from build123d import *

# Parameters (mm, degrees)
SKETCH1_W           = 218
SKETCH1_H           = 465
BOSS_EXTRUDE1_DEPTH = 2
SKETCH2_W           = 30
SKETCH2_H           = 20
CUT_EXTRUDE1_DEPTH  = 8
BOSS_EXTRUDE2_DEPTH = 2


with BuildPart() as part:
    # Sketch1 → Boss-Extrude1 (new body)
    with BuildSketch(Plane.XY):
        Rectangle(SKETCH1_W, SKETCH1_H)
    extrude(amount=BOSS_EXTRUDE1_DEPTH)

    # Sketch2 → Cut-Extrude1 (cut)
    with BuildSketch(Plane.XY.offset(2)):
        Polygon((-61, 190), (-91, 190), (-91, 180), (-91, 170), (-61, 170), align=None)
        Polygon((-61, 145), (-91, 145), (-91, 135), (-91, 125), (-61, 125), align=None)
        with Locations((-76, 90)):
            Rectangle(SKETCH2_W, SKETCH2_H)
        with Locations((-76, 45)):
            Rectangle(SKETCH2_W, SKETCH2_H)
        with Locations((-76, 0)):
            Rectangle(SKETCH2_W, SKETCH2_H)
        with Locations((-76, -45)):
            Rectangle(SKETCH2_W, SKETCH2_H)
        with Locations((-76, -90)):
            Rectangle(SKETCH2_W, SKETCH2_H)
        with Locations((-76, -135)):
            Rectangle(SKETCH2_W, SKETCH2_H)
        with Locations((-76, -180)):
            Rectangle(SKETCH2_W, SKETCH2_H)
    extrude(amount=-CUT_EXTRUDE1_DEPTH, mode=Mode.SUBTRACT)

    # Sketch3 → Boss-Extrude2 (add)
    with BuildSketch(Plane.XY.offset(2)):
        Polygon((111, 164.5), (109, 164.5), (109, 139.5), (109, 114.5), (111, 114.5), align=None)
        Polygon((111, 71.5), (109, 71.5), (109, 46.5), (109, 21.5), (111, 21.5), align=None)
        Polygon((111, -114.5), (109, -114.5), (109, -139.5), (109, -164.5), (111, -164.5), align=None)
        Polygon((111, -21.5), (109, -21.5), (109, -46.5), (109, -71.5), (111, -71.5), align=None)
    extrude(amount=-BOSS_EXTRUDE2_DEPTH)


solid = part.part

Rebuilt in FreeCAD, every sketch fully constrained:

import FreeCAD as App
import Part
import Sketcher

V = App.Vector

doc = App.newDocument("Part")
params = doc.addObject("Spreadsheet::Sheet", "Params")
for row, (alias, value) in enumerate([
    ("sketch1_width", "218 mm"),
    ("sketch1_height", "465 mm"),
    ("pad1_length", "2 mm"),
    ("sketch2_width", "30 mm"),
    ("sketch2_height", "20 mm"),
    ("pocket1_length", "8 mm"),
    ("sketch3_width", "2 mm"),
    ("sketch3_height", "50 mm"),
    ("pad2_length", "2 mm"),
], start=1):
    params.set(f"A{row}", alias)
    params.set(f"B{row}", "=" + value)
    params.setAlias(f"B{row}", alias)

body = doc.addObject("PartDesign::Body", "Body")

# Sketch on XY plane
sketch1 = body.newObject("Sketcher::SketchObject", "Sketch")
sketch1.AttachmentSupport = (doc.getObject("XY_Plane"), [""])
sketch1.MapMode = "FlatFace"
sketch1.addGeometry([
    Part.LineSegment(V(-109, 232, 0), V(-109, -232, 0)),
    Part.LineSegment(V(-109, -232, 0), V(109, -232, 0)),
    Part.LineSegment(V(109, -232, 0), V(109, 232, 0)),
    Part.LineSegment(V(109, 232, 0), V(-109, 232, 0)),
], False)
sketch1.addConstraint([
    Sketcher.Constraint("Coincident", 0, 2, 1, 1),
    Sketcher.Constraint("Coincident", 1, 2, 2, 1),
    Sketcher.Constraint("Coincident", 2, 2, 3, 1),
    Sketcher.Constraint("Coincident", 3, 2, 0, 1),
    Sketcher.Constraint("Vertical", 0),
    Sketcher.Constraint("Horizontal", 1),
    Sketcher.Constraint("Vertical", 2),
    Sketcher.Constraint("Horizontal", 3),
    Sketcher.Constraint("Symmetric", 0, 2, 2, 2, -1, 1),
    Sketcher.Constraint("DistanceX", 1, 1, 1, 2, 218.0),
    Sketcher.Constraint("DistanceY", 0, 2, 0, 1, 465.0),
])
sketch1.setExpression("Constraints[9]", "Params.sketch1_width")
sketch1.setExpression("Constraints[10]", "Params.sketch1_height")
pad1 = body.newObject("PartDesign::Pad", "Pad")
pad1.Profile = sketch1
pad1.setExpression("Length", "Params.pad1_length")

# Sketch on XY plane
sketch2 = body.newObject("Sketcher::SketchObject", "Sketch001")
sketch2.AttachmentSupport = (doc.getObject("XY_Plane"), [""])
sketch2.MapMode = "FlatFace"
sketch2.AttachmentOffset = App.Placement(V(0, 0, 2), App.Rotation())
sketch2.addGeometry([
    Part.LineSegment(V(-61, 190, 0), V(-91, 190, 0)),  # 0
    Part.LineSegment(V(-91, 190, 0), V(-91, 170, 0)),  # 1
    Part.LineSegment(V(-91, 170, 0), V(-61, 170, 0)),  # 2
    Part.LineSegment(V(-61, 170, 0), V(-61, 190, 0)),  # 3
    Part.LineSegment(V(-61, 145, 0), V(-91, 145, 0)),  # 4
    Part.LineSegment(V(-91, 145, 0), V(-91, 125, 0)),  # 5
    Part.LineSegment(V(-91, 125, 0), V(-61, 125, 0)),  # 6
    Part.LineSegment(V(-61, 125, 0), V(-61, 145, 0)),  # 7
    Part.LineSegment(V(-91, 100, 0), V(-91, 80, 0)),  # 8
    Part.LineSegment(V(-91, 80, 0), V(-61, 80, 0)),  # 9
    Part.LineSegment(V(-61, 80, 0), V(-61, 100, 0)),  # 10
    Part.LineSegment(V(-61, 100, 0), V(-91, 100, 0)),  # 11
    Part.LineSegment(V(-91, 55, 0), V(-91, 35, 0)),  # 12
    Part.LineSegment(V(-91, 35, 0), V(-61, 35, 0)),  # 13
    Part.LineSegment(V(-61, 35, 0), V(-61, 55, 0)),  # 14
    Part.LineSegment(V(-61, 55, 0), V(-91, 55, 0)),  # 15
    Part.LineSegment(V(-91, 10, 0), V(-91, -10, 0)),  # 16
    Part.LineSegment(V(-91, -10, 0), V(-61, -10, 0)),  # 17
    Part.LineSegment(V(-61, -10, 0), V(-61, 10, 0)),  # 18
    Part.LineSegment(V(-61, 10, 0), V(-91, 10, 0)),  # 19
    Part.LineSegment(V(-91, -35, 0), V(-91, -55, 0)),  # 20
    Part.LineSegment(V(-91, -55, 0), V(-61, -55, 0)),  # 21
    Part.LineSegment(V(-61, -55, 0), V(-61, -35, 0)),  # 22
    Part.LineSegment(V(-61, -35, 0), V(-91, -35, 0)),  # 23
    Part.LineSegment(V(-91, -80, 0), V(-91, -100, 0)),  # 24
    Part.LineSegment(V(-91, -100, 0), V(-61, -100, 0)),  # 25
    Part.LineSegment(V(-61, -100, 0), V(-61, -80, 0)),  # 26
    Part.LineSegment(V(-61, -80, 0), V(-91, -80, 0)),  # 27
    Part.LineSegment(V(-91, -125, 0), V(-91, -145, 0)),  # 28
    Part.LineSegment(V(-91, -145, 0), V(-61, -145, 0)),  # 29
    Part.LineSegment(V(-61, -145, 0), V(-61, -125, 0)),  # 30
    Part.LineSegment(V(-61, -125, 0), V(-91, -125, 0)),  # 31
    Part.LineSegment(V(-91, -170, 0), V(-91, -190, 0)),  # 32
    Part.LineSegment(V(-91, -190, 0), V(-61, -190, 0)),  # 33
    Part.LineSegment(V(-61, -190, 0), V(-61, -170, 0)),  # 34
    Part.LineSegment(V(-61, -170, 0), V(-91, -170, 0)),  # 35
], False)
sketch2.addConstraint([
    Sketcher.Constraint("Coincident", 0, 2, 1, 1),
    Sketcher.Constraint("Coincident", 1, 2, 2, 1),
    Sketcher.Constraint("Coincident", 2, 2, 3, 1),
    Sketcher.Constraint("Coincident", 3, 2, 0, 1),
    Sketcher.Constraint("Coincident", 4, 2, 5, 1),
    Sketcher.Constraint("Coincident", 5, 2, 6, 1),
    Sketcher.Constraint("Coincident", 6, 2, 7, 1),
    Sketcher.Constraint("Coincident", 7, 2, 4, 1),
    Sketcher.Constraint("Coincident", 8, 2, 9, 1),
    Sketcher.Constraint("Coincident", 9, 2, 10, 1),
    Sketcher.Constraint("Coincident", 10, 2, 11, 1),
    Sketcher.Constraint("Coincident", 11, 2, 8, 1),
    Sketcher.Constraint("Coincident", 12, 2, 13, 1),
    Sketcher.Constraint("Coincident", 13, 2, 14, 1),
    Sketcher.Constraint("Coincident", 14, 2, 15, 1),
    Sketcher.Constraint("Coincident", 15, 2, 12, 1),
    Sketcher.Constraint("Coincident", 16, 2, 17, 1),
    Sketcher.Constraint("Coincident", 17, 2, 18, 1),
    Sketcher.Constraint("Coincident", 18, 2, 19, 1),
    Sketcher.Constraint("Coincident", 19, 2, 16, 1),
    Sketcher.Constraint("Coincident", 20, 2, 21, 1),
    Sketcher.Constraint("Coincident", 21, 2, 22, 1),
    Sketcher.Constraint("Coincident", 22, 2, 23, 1),
    Sketcher.Constraint("Coincident", 23, 2, 20, 1),
    Sketcher.Constraint("Coincident", 24, 2, 25, 1),
    Sketcher.Constraint("Coincident", 25, 2, 26, 1),
    Sketcher.Constraint("Coincident", 26, 2, 27, 1),
    Sketcher.Constraint("Coincident", 27, 2, 24, 1),
    Sketcher.Constraint("Coincident", 28, 2, 29, 1),
    Sketcher.Constraint("Coincident", 29, 2, 30, 1),
    Sketcher.Constraint("Coincident", 30, 2, 31, 1),
    Sketcher.Constraint("Coincident", 31, 2, 28, 1),
    Sketcher.Constraint("Coincident", 32, 2, 33, 1),
    Sketcher.Constraint("Coincident", 33, 2, 34, 1),
    Sketcher.Constraint("Coincident", 34, 2, 35, 1),
    Sketcher.Constraint("Coincident", 35, 2, 32, 1),
    Sketcher.Constraint("Horizontal", 0),
    Sketcher.Constraint("Vertical", 1),
    Sketcher.Constraint("Horizontal", 2),
    Sketcher.Constraint("Vertical", 3),
    Sketcher.Constraint("Horizontal", 4),
    Sketcher.Constraint("Vertical", 5),
    Sketcher.Constraint("Horizontal", 6),
    Sketcher.Constraint("Vertical", 7),
    Sketcher.Constraint("Vertical", 8),
    Sketcher.Constraint("Horizontal", 9),
    Sketcher.Constraint("Vertical", 10),
    Sketcher.Constraint("Horizontal", 11),
    Sketcher.Constraint("Vertical", 12),
    Sketcher.Constraint("Horizontal", 13),
    Sketcher.Constraint("Vertical", 14),
    Sketcher.Constraint("Horizontal", 15),
    Sketcher.Constraint("Vertical", 16),
    Sketcher.Constraint("Horizontal", 17),
    Sketcher.Constraint("Vertical", 18),
    Sketcher.Constraint("Horizontal", 19),
    Sketcher.Constraint("Vertical", 20),
    Sketcher.Constraint("Horizontal", 21),
    Sketcher.Constraint("Vertical", 22),
    Sketcher.Constraint("Horizontal", 23),
    Sketcher.Constraint("Vertical", 24),
    Sketcher.Constraint("Horizontal", 25),
    Sketcher.Constraint("Vertical", 26),
    Sketcher.Constraint("Horizontal", 27),
    Sketcher.Constraint("Vertical", 28),
    Sketcher.Constraint("Horizontal", 29),
    Sketcher.Constraint("Vertical", 30),
    Sketcher.Constraint("Horizontal", 31),
    Sketcher.Constraint("Vertical", 32),
    Sketcher.Constraint("Horizontal", 33),
    Sketcher.Constraint("Vertical", 34),
    Sketcher.Constraint("Horizontal", 35),
    Sketcher.Constraint("Symmetric", 15, 2, 20, 2, -1),
    Sketcher.Constraint("Symmetric", 13, 2, 22, 2, -1),
    Sketcher.Constraint("Symmetric", 11, 2, 24, 2, -1),
    Sketcher.Constraint("Symmetric", 9, 2, 26, 2, -1),
    Sketcher.Constraint("Symmetric", 4, 2, 28, 2, -1),
    Sketcher.Constraint("Symmetric", 6, 2, 30, 2, -1),
    Sketcher.Constraint("Symmetric", 0, 2, 32, 2, -1),
    Sketcher.Constraint("Symmetric", 2, 2, 34, 2, -1),
    Sketcher.Constraint("Vertical", 1, 2, 4, 2),
    Sketcher.Constraint("Vertical", 3, 2, 6, 2),
    Sketcher.Constraint("Vertical", 5, 2, 8, 2),
    Sketcher.Constraint("Vertical", 7, 2, 9, 2),
    Sketcher.Constraint("Vertical", 11, 2, 12, 2),
    Sketcher.Constraint("Vertical", 10, 2, 13, 2),
    Sketcher.Constraint("Vertical", 15, 2, 16, 2),
    Sketcher.Constraint("Vertical", 14, 2, 17, 2),
    Sketcher.Constraint("Equal", 3, 5),
    Sketcher.Constraint("Equal", 7, 8),
    Sketcher.Constraint("Equal", 10, 12),
    Sketcher.Constraint("Equal", 14, 16),
    Sketcher.Constraint("DistanceX", 0, 2, 0, 1, 30.0),
    Sketcher.Constraint("DistanceY", 1, 2, 1, 1, 20.0),
    Sketcher.Constraint("DistanceX", 0, 2, -1, 1, 91.0),
    Sketcher.Constraint("DistanceY", -1, 1, 0, 2, 190.0),
    Sketcher.Constraint("DistanceY", -1, 1, 4, 2, 145.0),
    Sketcher.Constraint("DistanceY", -1, 1, 8, 2, 80.0),
    Sketcher.Constraint("DistanceY", -1, 1, 12, 2, 35.0),
    Sketcher.Constraint("DistanceY", 16, 2, -1, 1, 10.0),
])
sketch2.setExpression("Constraints[92]", "Params.sketch2_width")
sketch2.setExpression("Constraints[93]", "Params.sketch2_height")
pocket1 = body.newObject("PartDesign::Pocket", "Pocket")
pocket1.Profile = sketch2
pocket1.setExpression("Length", "Params.pocket1_length")

# Sketch on XY plane
sketch3 = body.newObject("Sketcher::SketchObject", "Sketch002")
sketch3.AttachmentSupport = (doc.getObject("XY_Plane"), [""])
sketch3.MapMode = "FlatFace"
sketch3.AttachmentOffset = App.Placement(V(0, 0, 2), App.Rotation())
sketch3.addGeometry([
    Part.LineSegment(V(111, 164.5, 0), V(109, 164.5, 0)),  # 0
    Part.LineSegment(V(109, 164.5, 0), V(109, 114.5, 0)),  # 1
    Part.LineSegment(V(109, 114.5, 0), V(111, 114.5, 0)),  # 2
    Part.LineSegment(V(111, 114.5, 0), V(111, 164.5, 0)),  # 3
    Part.LineSegment(V(111, 71.5, 0), V(109, 71.5, 0)),  # 4
    Part.LineSegment(V(109, 71.5, 0), V(109, 21.5, 0)),  # 5
    Part.LineSegment(V(109, 21.5, 0), V(111, 21.5, 0)),  # 6
    Part.LineSegment(V(111, 21.5, 0), V(111, 71.5, 0)),  # 7
    Part.LineSegment(V(111, -114.5, 0), V(109, -114.5, 0)),  # 8
    Part.LineSegment(V(109, -114.5, 0), V(109, -164.5, 0)),  # 9
    Part.LineSegment(V(109, -164.5, 0), V(111, -164.5, 0)),  # 10
    Part.LineSegment(V(111, -164.5, 0), V(111, -114.5, 0)),  # 11
    Part.LineSegment(V(111, -21.5, 0), V(109, -21.5, 0)),  # 12
    Part.LineSegment(V(109, -21.5, 0), V(109, -71.5, 0)),  # 13
    Part.LineSegment(V(109, -71.5, 0), V(111, -71.5, 0)),  # 14
    Part.LineSegment(V(111, -71.5, 0), V(111, -21.5, 0)),  # 15
], False)
sketch3.addConstraint([
    Sketcher.Constraint("Coincident", 0, 2, 1, 1),
    Sketcher.Constraint("Coincident", 1, 2, 2, 1),
    Sketcher.Constraint("Coincident", 2, 2, 3, 1),
    Sketcher.Constraint("Coincident", 3, 2, 0, 1),
    Sketcher.Constraint("Coincident", 4, 2, 5, 1),
    Sketcher.Constraint("Coincident", 5, 2, 6, 1),
    Sketcher.Constraint("Coincident", 6, 2, 7, 1),
    Sketcher.Constraint("Coincident", 7, 2, 4, 1),
    Sketcher.Constraint("Coincident", 8, 2, 9, 1),
    Sketcher.Constraint("Coincident", 9, 2, 10, 1),
    Sketcher.Constraint("Coincident", 10, 2, 11, 1),
    Sketcher.Constraint("Coincident", 11, 2, 8, 1),
    Sketcher.Constraint("Coincident", 12, 2, 13, 1),
    Sketcher.Constraint("Coincident", 13, 2, 14, 1),
    Sketcher.Constraint("Coincident", 14, 2, 15, 1),
    Sketcher.Constraint("Coincident", 15, 2, 12, 1),
    Sketcher.Constraint("Horizontal", 0),
    Sketcher.Constraint("Vertical", 1),
    Sketcher.Constraint("Horizontal", 2),
    Sketcher.Constraint("Vertical", 3),
    Sketcher.Constraint("Horizontal", 4),
    Sketcher.Constraint("Vertical", 5),
    Sketcher.Constraint("Horizontal", 6),
    Sketcher.Constraint("Vertical", 7),
    Sketcher.Constraint("Horizontal", 8),
    Sketcher.Constraint("Vertical", 9),
    Sketcher.Constraint("Horizontal", 10),
    Sketcher.Constraint("Vertical", 11),
    Sketcher.Constraint("Horizontal", 12),
    Sketcher.Constraint("Vertical", 13),
    Sketcher.Constraint("Horizontal", 14),
    Sketcher.Constraint("Vertical", 15),
    Sketcher.Constraint("Symmetric", 1, 2, 8, 2, -1),
    Sketcher.Constraint("Symmetric", 3, 2, 10, 2, -1),
    Sketcher.Constraint("Symmetric", 5, 2, 12, 2, -1),
    Sketcher.Constraint("Symmetric", 7, 2, 14, 2, -1),
    Sketcher.Constraint("Vertical", 1, 2, 4, 2),
    Sketcher.Constraint("Vertical", 3, 2, 6, 2),
    Sketcher.Constraint("Equal", 3, 5),
    Sketcher.Constraint("DistanceX", 0, 2, 0, 1, 2.0),
    Sketcher.Constraint("DistanceY", 1, 2, 1, 1, 50.0),
    Sketcher.Constraint("DistanceX", -1, 1, 0, 2, 109.0),
    Sketcher.Constraint("DistanceY", 4, 2, 1, 2, 43.0),
    Sketcher.Constraint("DistanceY", 8, 2, 5, 2, 136.0),
])
sketch3.setExpression("Constraints[39]", "Params.sketch3_width")
sketch3.setExpression("Constraints[40]", "Params.sketch3_height")
pad2 = body.newObject("PartDesign::Pad", "Pad001")
pad2.Profile = sketch3
pad2.setExpression("Length", "Params.pad2_length")
pad2.Reversed = True

doc.recompute()
